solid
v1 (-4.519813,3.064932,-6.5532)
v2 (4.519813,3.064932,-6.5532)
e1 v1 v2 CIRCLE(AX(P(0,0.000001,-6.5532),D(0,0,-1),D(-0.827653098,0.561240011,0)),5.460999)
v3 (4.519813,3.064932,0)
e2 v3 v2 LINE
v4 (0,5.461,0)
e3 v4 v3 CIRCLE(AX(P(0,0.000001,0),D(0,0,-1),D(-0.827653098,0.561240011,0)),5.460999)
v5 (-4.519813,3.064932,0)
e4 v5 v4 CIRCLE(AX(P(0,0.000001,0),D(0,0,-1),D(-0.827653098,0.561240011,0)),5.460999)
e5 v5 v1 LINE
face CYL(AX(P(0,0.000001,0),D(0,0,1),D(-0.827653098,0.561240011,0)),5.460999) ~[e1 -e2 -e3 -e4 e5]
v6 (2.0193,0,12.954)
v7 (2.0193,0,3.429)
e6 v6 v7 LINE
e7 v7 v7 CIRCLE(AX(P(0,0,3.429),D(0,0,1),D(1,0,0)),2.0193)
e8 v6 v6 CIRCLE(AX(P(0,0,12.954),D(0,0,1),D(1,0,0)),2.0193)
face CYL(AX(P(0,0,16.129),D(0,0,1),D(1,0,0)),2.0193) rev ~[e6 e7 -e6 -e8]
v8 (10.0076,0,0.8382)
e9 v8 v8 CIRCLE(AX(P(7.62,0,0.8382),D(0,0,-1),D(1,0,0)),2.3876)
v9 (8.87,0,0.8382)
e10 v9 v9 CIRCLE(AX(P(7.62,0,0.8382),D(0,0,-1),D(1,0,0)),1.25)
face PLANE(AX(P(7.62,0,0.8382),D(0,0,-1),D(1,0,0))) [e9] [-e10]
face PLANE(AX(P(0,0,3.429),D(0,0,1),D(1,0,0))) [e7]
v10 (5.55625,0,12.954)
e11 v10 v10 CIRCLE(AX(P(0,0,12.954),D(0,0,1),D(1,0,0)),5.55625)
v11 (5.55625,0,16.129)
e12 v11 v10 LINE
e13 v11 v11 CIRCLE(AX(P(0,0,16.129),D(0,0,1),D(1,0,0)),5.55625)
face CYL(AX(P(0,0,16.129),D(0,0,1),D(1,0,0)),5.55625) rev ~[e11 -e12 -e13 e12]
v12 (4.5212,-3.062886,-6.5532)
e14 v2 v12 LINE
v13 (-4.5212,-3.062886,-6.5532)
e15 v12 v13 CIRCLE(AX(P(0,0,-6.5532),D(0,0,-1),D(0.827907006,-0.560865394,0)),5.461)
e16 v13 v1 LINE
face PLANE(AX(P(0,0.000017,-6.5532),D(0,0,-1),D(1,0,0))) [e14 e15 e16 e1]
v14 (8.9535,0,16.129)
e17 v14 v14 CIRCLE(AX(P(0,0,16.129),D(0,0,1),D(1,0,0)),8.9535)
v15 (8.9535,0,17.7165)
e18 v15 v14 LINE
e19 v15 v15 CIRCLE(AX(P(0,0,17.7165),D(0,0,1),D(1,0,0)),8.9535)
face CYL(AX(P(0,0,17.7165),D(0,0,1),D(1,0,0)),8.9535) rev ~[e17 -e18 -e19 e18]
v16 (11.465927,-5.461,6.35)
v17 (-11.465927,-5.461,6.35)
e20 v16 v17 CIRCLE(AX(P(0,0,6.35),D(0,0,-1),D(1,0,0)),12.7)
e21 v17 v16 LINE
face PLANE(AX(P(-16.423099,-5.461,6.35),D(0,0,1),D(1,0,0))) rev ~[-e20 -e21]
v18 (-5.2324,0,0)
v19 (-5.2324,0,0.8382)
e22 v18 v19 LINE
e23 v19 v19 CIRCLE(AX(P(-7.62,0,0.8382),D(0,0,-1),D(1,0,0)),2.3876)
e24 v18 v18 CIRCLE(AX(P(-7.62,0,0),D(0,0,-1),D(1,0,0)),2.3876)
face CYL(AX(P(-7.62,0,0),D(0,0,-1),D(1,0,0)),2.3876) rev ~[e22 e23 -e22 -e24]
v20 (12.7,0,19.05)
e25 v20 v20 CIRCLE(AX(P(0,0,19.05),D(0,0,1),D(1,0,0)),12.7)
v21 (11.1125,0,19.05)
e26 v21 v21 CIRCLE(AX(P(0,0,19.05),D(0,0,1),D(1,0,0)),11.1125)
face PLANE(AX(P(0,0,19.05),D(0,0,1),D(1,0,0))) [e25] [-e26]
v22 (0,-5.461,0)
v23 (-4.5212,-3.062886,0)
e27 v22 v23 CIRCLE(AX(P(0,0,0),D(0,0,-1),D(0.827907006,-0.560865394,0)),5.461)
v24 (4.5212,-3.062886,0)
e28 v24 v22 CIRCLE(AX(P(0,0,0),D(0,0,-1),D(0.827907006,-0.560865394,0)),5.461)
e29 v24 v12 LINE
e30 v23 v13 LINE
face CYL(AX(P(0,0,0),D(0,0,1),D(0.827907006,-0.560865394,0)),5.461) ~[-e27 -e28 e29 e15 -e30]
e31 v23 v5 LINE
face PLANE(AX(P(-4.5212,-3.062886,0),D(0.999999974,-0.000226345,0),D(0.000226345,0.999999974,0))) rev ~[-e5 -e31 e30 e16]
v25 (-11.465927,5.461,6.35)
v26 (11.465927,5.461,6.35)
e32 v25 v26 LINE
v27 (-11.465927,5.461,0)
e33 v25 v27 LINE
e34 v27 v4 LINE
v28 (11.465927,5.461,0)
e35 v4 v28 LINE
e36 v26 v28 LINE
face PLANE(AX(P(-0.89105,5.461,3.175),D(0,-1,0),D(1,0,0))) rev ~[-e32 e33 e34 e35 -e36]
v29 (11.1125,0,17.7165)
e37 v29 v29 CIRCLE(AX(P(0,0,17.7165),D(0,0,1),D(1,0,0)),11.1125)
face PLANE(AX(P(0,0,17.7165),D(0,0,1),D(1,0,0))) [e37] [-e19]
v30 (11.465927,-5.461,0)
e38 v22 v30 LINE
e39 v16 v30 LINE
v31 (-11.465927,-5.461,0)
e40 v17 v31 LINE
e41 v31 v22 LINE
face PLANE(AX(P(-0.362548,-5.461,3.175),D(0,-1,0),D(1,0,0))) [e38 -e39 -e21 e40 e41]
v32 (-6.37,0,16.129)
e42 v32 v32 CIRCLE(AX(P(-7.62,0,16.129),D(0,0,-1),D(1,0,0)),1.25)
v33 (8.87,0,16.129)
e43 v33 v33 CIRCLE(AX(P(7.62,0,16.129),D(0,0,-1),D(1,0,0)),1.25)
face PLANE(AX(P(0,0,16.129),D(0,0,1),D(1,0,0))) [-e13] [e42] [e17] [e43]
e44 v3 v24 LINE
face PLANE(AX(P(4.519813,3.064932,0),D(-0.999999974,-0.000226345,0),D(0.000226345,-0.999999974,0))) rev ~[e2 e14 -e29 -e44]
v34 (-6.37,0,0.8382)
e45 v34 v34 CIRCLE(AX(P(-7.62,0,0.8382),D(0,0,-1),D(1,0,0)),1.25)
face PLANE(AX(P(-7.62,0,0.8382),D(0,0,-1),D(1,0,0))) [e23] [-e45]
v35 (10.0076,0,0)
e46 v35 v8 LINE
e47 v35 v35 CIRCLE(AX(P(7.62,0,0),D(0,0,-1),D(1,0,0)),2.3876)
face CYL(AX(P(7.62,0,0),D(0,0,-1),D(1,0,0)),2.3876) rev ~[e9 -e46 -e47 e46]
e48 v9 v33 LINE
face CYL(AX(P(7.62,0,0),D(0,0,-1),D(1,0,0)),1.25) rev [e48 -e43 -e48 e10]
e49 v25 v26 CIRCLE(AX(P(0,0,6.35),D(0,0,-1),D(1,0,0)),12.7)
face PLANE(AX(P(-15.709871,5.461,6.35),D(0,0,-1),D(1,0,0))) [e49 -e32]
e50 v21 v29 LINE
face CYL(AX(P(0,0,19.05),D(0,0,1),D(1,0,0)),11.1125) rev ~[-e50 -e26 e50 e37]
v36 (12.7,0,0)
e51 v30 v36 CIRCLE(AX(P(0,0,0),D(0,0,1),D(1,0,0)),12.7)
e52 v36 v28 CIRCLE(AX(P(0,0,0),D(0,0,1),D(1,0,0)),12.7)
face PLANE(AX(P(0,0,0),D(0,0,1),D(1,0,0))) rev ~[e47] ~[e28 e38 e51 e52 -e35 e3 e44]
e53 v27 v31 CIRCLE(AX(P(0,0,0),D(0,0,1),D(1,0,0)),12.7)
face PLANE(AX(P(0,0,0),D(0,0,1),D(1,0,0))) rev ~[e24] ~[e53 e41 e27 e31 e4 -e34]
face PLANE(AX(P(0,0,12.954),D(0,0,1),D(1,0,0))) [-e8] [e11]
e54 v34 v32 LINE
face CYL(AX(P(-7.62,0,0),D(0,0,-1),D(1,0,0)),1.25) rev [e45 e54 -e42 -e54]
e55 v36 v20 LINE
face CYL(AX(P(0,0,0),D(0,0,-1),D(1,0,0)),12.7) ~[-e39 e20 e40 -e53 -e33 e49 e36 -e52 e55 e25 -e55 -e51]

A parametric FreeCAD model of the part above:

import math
import FreeCAD as App
import Part
import Sketcher

V = App.Vector
Q = App.Units.Quantity

doc = App.newDocument("Part")
params = doc.addObject("Spreadsheet::Sheet", "Params")
for row, (alias, value) in enumerate([
    ("sketch1_diameter", "1 in"),
    ("pad1_length", "0.75 in"),
    ("sketch2_diameter", "0.875 in"),
    ("pocket1_length", "0.0525 in"),
    ("sketch3_diameter", "0.705 in"),
    ("pocket2_length", "0.0625 in"),
    ("sketch4_diameter", "0.188 in"),
    ("pocket3_length", "0.033 in"),
    ("sketch5_radius", "0.215 in"),
    ("pad2_length", "0.258 in"),
    ("sketch6_diameter", "0.159 in"),
    ("pocket4_length", "0.5 in"),
    ("sketch7_diameter", "0.4375 in"),
    ("pocket5_length", "0.125 in"),
    ("sketch8_height", "0.25 in"),
    ("pocket6_length", "1 in"),
    ("sketch9_height", "0.25 in"),
    ("pocket7_length", "1 in"),
], start=1):
    params.set(f"A{row}", alias)
    params.set(f"B{row}", "=" + value)
    params.setAlias(f"B{row}", alias)

body = doc.addObject("PartDesign::Body", "Body")

sketch1 = body.newObject("Sketcher::SketchObject", "Sketch")
sketch1.AttachmentSupport = (doc.getObject("XY_Plane"), [""])
sketch1.MapMode = "FlatFace"
sketch1.addGeometry([
    Part.Circle(V(0, 0, 0), V(0, 0, 1), 12.7),
    Part.Circle(V(-7.6, 0, 0), V(0, 0, 1), 1.2),
    Part.Circle(V(7.6, 0, 0), V(0, 0, 1), 1.2),
], False)
sketch1.addConstraint([
    Sketcher.Constraint("Coincident", 0, 3, -1, 1),
    Sketcher.Constraint("Equal", 1, 2),
    Sketcher.Constraint("Symmetric", 1, 3, 2, 3, -1, 1),
    Sketcher.Constraint("PointOnObject", 1, 3, -1),
    Sketcher.Constraint("Diameter", 0, Q("1 in")),
    Sketcher.Constraint("DistanceX", 1, 3, -1, 1, Q("0.3 in")),
    Sketcher.Constraint("Diameter", 1, 2.5),
])
sketch1.setExpression("Constraints[4]", "Params.sketch1_diameter")
pad1 = body.newObject("PartDesign::Pad", "Pad")
pad1.Profile = sketch1
pad1.setExpression("Length", "Params.pad1_length")

sketch2 = body.newObject("Sketcher::SketchObject", "Sketch001")
sketch2.AttachmentSupport = (doc.getObject("XY_Plane"), [""])
sketch2.MapMode = "FlatFace"
sketch2.AttachmentOffset = App.Placement(V(0, 0, 0.75 * 25.4), App.Rotation())
sketch2.addGeometry(Part.Circle(V(0, 0, 0), V(0, 0, 1), 11), False)
sketch2.addConstraint([
    Sketcher.Constraint("Coincident", 0, 3, -1, 1),
    Sketcher.Constraint("Diameter", 0, Q("0.875 in")),
])
sketch2.setExpression("Constraints[1]", "Params.sketch2_diameter")
pocket1 = body.newObject("PartDesign::Pocket", "Pocket")
pocket1.Profile = sketch2
pocket1.setExpression("Length", "Params.pocket1_length")

sketch3 = body.newObject("Sketcher::SketchObject", "Sketch002")
sketch3.AttachmentSupport = (doc.getObject("XY_Plane"), [""])
sketch3.MapMode = "FlatFace"
sketch3.AttachmentOffset = App.Placement(V(0, 0, 0.6975 * 25.4), App.Rotation())
sketch3.addGeometry(Part.Circle(V(0, 0, 0), V(0, 0, 1), 9), False)
sketch3.addConstraint([
    Sketcher.Constraint("Coincident", 0, 3, -1, 1),
    Sketcher.Constraint("Diameter", 0, Q("0.705 in")),
])
sketch3.setExpression("Constraints[1]", "Params.sketch3_diameter")
pocket2 = body.newObject("PartDesign::Pocket", "Pocket001")
pocket2.Profile = sketch3
pocket2.setExpression("Length", "Params.pocket2_length")

sketch4 = body.newObject("Sketcher::SketchObject", "Sketch003")
sketch4.AttachmentSupport = (doc.getObject("XY_Plane"), [""])
sketch4.MapMode = "FlatFace"
sketch4.addGeometry([
    Part.Circle(V(-7.6, 0, 0), V(0, 0, 1), 2.4),
    Part.Circle(V(-7.6, 0, 0), V(0, 0, 1), 1.2),
    Part.Circle(V(7.6, 0, 0), V(0, 0, 1), 2.4),
    Part.Circle(V(7.6, 0, 0), V(0, 0, 1), 1.2),
], False)
sketch4.addConstraint([
    Sketcher.Constraint("Coincident", 1, 3, 0, 3),
    Sketcher.Constraint("Coincident", 3, 3, 2, 3),
    Sketcher.Constraint("Equal", 0, 2),
    Sketcher.Constraint("Equal", 1, 3),
    Sketcher.Constraint("Symmetric", 0, 3, 2, 3, -1, 1),
    Sketcher.Constraint("PointOnObject", 0, 3, -1),
    Sketcher.Constraint("Diameter", 0, Q("0.188 in")),
    Sketcher.Constraint("DistanceX", 0, 3, -1, 1, Q("0.3 in")),
    Sketcher.Constraint("Diameter", 1, 2.5),
])
sketch4.setExpression("Constraints[6]", "Params.sketch4_diameter")
pocket3 = body.newObject("PartDesign::Pocket", "Pocket002")
pocket3.Profile = sketch4
pocket3.setExpression("Length", "Params.pocket3_length")
pocket3.Reversed = True

sketch5 = body.newObject("Sketcher::SketchObject", "Sketch004")
sketch5.AttachmentSupport = (doc.getObject("XY_Plane"), [""])
sketch5.MapMode = "FlatFace"
sketch5.addGeometry([
    Part.LineSegment(V(-5, -3, 0), V(-5, 3, 0)),
    Part.ArcOfCircle(Part.Circle(V(0, 0, 0), V(0, 0, 1), 5), math.radians(34), math.radians(146)),
    Part.LineSegment(V(5, 3, 0), V(5, -3, 0)),
    Part.ArcOfCircle(Part.Circle(V(0, 0, 0), V(0, 0, 1), 5), math.radians(-146), math.radians(-34)),
], False)
sketch5.addConstraint([
    Sketcher.Constraint("Coincident", 0, 2, 1, 2),
    Sketcher.Constraint("Coincident", 1, 1, 2, 1),
    Sketcher.Constraint("Coincident", 2, 2, 3, 2),
    Sketcher.Constraint("Coincident", 3, 1, 0, 1),
    Sketcher.Constraint("Coincident", 1, 3, -1, 1),
    Sketcher.Constraint("Coincident", 3, 3, -1, 1),
    Sketcher.Constraint("Equal", 1, 3),
    Sketcher.Constraint("Horizontal", 0, 2, 1, 1),
    Sketcher.Constraint("Horizontal", 2, 2, 3, 1),
    Sketcher.Constraint("Radius", 1, Q("0.215 in")),
    Sketcher.Constraint("DistanceX", -1, 1, 2, 2, Q("0.178 in")),
    Sketcher.Constraint("Distance", 0, 6.127818),
])
sketch5.setExpression("Constraints[9]", "Params.sketch5_radius")
pad2 = body.newObject("PartDesign::Pad", "Pad001")
pad2.Profile = sketch5
pad2.setExpression("Length", "Params.pad2_length")
pad2.Reversed = True

sketch6 = body.newObject("Sketcher::SketchObject", "Sketch005")
sketch6.AttachmentSupport = (doc.getObject("XY_Plane"), [""])
sketch6.MapMode = "FlatFace"
sketch6.AttachmentOffset = App.Placement(V(0, 0, 0.635 * 25.4), App.Rotation())
sketch6.addGeometry(Part.Circle(V(0, 0, 0), V(0, 0, 1), 2), False)
sketch6.addConstraint([
    Sketcher.Constraint("Coincident", 0, 3, -1, 1),
    Sketcher.Constraint("Diameter", 0, Q("0.159 in")),
])
sketch6.setExpression("Constraints[1]", "Params.sketch6_diameter")
pocket4 = body.newObject("PartDesign::Pocket", "Pocket003")
pocket4.Profile = sketch6
pocket4.setExpression("Length", "Params.pocket4_length")

sketch7 = body.newObject("Sketcher::SketchObject", "Sketch006")
sketch7.AttachmentSupport = (doc.getObject("XY_Plane"), [""])
sketch7.MapMode = "FlatFace"
sketch7.AttachmentOffset = App.Placement(V(0, 0, 0.635 * 25.4), App.Rotation())
sketch7.addGeometry(Part.Circle(V(0, 0, 0), V(0, 0, 1), 6), False)
sketch7.addConstraint([
    Sketcher.Constraint("Coincident", 0, 3, -1, 1),
    Sketcher.Constraint("Diameter", 0, Q("0.4375 in")),
])
sketch7.setExpression("Constraints[1]", "Params.sketch7_diameter")
pocket5 = body.newObject("PartDesign::Pocket", "Pocket004")
pocket5.Profile = sketch7
pocket5.setExpression("Length", "Params.pocket5_length")

sketch8 = body.newObject("Sketcher::SketchObject", "Sketch007")
sketch8.AttachmentSupport = (doc.getObject("XZ_Plane"), [""])
sketch8.MapMode = "FlatFace"
sketch8.AttachmentOffset = App.Placement(V(0, 0, 0.215 * 25.4), App.Rotation())
sketch8.addGeometry([
    Part.LineSegment(V(-16, 6, 0), V(-16, 0, 0)),
    Part.LineSegment(V(-16, 0, 0), V(16, 0, 0)),
    Part.LineSegment(V(16, 0, 0), V(16, 6, 0)),
    Part.LineSegment(V(16, 6, 0), V(-16, 6, 0)),
], False)
sketch8.addConstraint([
    Sketcher.Constraint("Coincident", 0, 2, 1, 1),
    Sketcher.Constraint("Coincident", 1, 2, 2, 1),
    Sketcher.Constraint("Coincident", 2, 2, 3, 1),
    Sketcher.Constraint("Coincident", 3, 2, 0, 1),
    Sketcher.Constraint("Vertical", 0),
    Sketcher.Constraint("Horizontal", 1),
    Sketcher.Constraint("Vertical", 2),
    Sketcher.Constraint("Horizontal", 3),
    Sketcher.Constraint("PointOnObject", 0, 2, -1),
    Sketcher.Constraint("DistanceY", 0, 2, 0, 1, Q("0.25 in")),
    Sketcher.Constraint("DistanceX", 0, 2, -1, 1, 16.423099),
    Sketcher.Constraint("DistanceX", 1, 1, 1, 2, 32.121103),
])
sketch8.setExpression("Constraints[9]", "Params.sketch8_height")
pocket6 = body.newObject("PartDesign::Pocket", "Pocket005")
pocket6.Profile = sketch8
pocket6.setExpression("Length", "Params.pocket6_length")
pocket6.Reversed = True

sketch9 = body.newObject("Sketcher::SketchObject", "Sketch008")
sketch9.AttachmentSupport = (doc.getObject("XZ_Plane"), [""])
sketch9.MapMode = "FlatFace"
sketch9.AttachmentOffset = App.Placement(V(0, 0, -0.215 * 25.4), App.Rotation())
sketch9.addGeometry([
    Part.LineSegment(V(-16, 6, 0), V(-16, 0, 0)),
    Part.LineSegment(V(-16, 0, 0), V(14, 0, 0)),
    Part.LineSegment(V(14, 0, 0), V(14, 6, 0)),
    Part.LineSegment(V(14, 6, 0), V(-16, 6, 0)),
], False)
sketch9.addConstraint([
    Sketcher.Constraint("Coincident", 0, 2, 1, 1),
    Sketcher.Constraint("Coincident", 1, 2, 2, 1),
    Sketcher.Constraint("Coincident", 2, 2, 3, 1),
    Sketcher.Constraint("Coincident", 3, 2, 0, 1),
    Sketcher.Constraint("Vertical", 0),
    Sketcher.Constraint("Horizontal", 1),
    Sketcher.Constraint("Vertical", 2),
    Sketcher.Constraint("Horizontal", 3),
    Sketcher.Constraint("PointOnObject", 0, 2, -1),
    Sketcher.Constraint("DistanceY", 0, 2, 0, 1, Q("0.25 in")),
    Sketcher.Constraint("DistanceX", 1, 1, 1, 2, 29.637642),
    Sketcher.Constraint("DistanceX", 0, 2, -1, 1, 15.709871),
])
sketch9.setExpression("Constraints[9]", "Params.sketch9_height")
pocket7 = body.newObject("PartDesign::Pocket", "Pocket006")
pocket7.Profile = sketch9
pocket7.setExpression("Length", "Params.pocket7_length")

doc.recompute()
